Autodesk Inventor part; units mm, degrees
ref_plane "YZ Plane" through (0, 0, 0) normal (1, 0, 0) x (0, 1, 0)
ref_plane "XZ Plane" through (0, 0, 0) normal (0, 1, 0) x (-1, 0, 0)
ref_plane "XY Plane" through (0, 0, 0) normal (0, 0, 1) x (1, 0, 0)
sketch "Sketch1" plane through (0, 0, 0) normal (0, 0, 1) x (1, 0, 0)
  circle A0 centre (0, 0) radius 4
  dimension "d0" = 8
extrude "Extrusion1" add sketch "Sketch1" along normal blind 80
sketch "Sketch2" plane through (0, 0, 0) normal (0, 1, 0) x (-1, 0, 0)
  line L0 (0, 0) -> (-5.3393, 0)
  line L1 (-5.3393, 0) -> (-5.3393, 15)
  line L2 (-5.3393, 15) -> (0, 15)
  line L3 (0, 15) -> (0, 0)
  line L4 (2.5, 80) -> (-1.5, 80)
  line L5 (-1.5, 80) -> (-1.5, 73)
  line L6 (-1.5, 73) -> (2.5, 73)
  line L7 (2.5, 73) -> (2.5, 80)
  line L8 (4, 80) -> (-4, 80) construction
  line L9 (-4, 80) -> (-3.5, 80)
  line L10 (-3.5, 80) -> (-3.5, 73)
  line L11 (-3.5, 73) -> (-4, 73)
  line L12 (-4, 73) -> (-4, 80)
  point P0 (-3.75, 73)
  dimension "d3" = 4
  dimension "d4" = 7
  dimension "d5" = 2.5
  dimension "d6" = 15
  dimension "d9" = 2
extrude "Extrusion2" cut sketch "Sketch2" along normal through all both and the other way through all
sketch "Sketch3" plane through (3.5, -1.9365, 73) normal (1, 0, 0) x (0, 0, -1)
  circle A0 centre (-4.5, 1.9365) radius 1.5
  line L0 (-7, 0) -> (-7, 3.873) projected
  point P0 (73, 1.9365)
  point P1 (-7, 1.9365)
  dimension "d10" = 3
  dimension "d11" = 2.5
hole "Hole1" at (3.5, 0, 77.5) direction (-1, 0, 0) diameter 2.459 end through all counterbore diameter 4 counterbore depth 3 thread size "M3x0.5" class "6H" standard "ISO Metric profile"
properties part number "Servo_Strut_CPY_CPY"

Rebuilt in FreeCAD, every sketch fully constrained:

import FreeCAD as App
import Part
import Sketcher


def add_polygon(sketch, points):
    """Adds a closed chain of lines whose ends are joined by coincident constraints."""
    first, n = sketch.GeometryCount, len(points)
    for a, b in zip(points, points[1:] + points[:1]):
        sketch.addGeometry(Part.LineSegment(App.Vector(*a, 0), App.Vector(*b, 0)), False)
    for i in range(n):
        sketch.addConstraint(Sketcher.Constraint("Coincident", first + i, 2, first + (i + 1) % n, 1))

doc = App.newDocument("Part")
body = doc.addObject("PartDesign::Body", "Body")

# Sketch on XY plane
sketch1 = body.newObject("Sketcher::SketchObject", "Sketch")
sketch1.AttachmentSupport = (doc.getObject("XY_Plane"), [""])
sketch1.MapMode = "FlatFace"
sketch1.addGeometry(Part.Circle(App.Vector(0, 0, 0), App.Vector(0, 0, 1), 4), False)
sketch1.addConstraint(Sketcher.Constraint("Coincident", 0, 3, -1, 1))
sketch1.addConstraint(Sketcher.Constraint("Diameter", 0, 8.0))
pad1 = body.newObject("PartDesign::Pad", "Pad")
pad1.Profile = sketch1
pad1.Length = 80

# Sketch on XZ plane
sketch2 = body.newObject("Sketcher::SketchObject", "Sketch001")
sketch2.AttachmentSupport = (doc.getObject("XZ_Plane"), [""])
sketch2.MapMode = "FlatFace"
add_polygon(sketch2, [(5.3, 0), (0, 0), (0, 15), (5.3, 15)])  # lines 0-3
add_polygon(sketch2, [(-2.5, 73), (-2.5, 80), (1.5, 80), (1.5, 73)])  # lines 4-7
add_polygon(sketch2, [(3.5, 80), (4, 80), (4, 73), (3.5, 73)])  # lines 8-11
sketch2.addConstraint(Sketcher.Constraint("Horizontal", 0))
sketch2.addConstraint(Sketcher.Constraint("Vertical", 1))
sketch2.addConstraint(Sketcher.Constraint("Horizontal", 2))
sketch2.addConstraint(Sketcher.Constraint("Vertical", 3))
sketch2.addConstraint(Sketcher.Constraint("Vertical", 4))
sketch2.addConstraint(Sketcher.Constraint("Horizontal", 5))
sketch2.addConstraint(Sketcher.Constraint("Vertical", 6))
sketch2.addConstraint(Sketcher.Constraint("Horizontal", 7))
sketch2.addConstraint(Sketcher.Constraint("Horizontal", 8))
sketch2.addConstraint(Sketcher.Constraint("Vertical", 9))
sketch2.addConstraint(Sketcher.Constraint("Horizontal", 10))
sketch2.addConstraint(Sketcher.Constraint("Vertical", 11))
sketch2.addConstraint(Sketcher.Constraint("Coincident", 0, 2, -1, 1))
sketch2.addConstraint(Sketcher.Constraint("Horizontal", 5, 2, 8, 2))
sketch2.addConstraint(Sketcher.Constraint("Horizontal", 7, 2, 9, 2))
sketch2.addConstraint(Sketcher.Constraint("DistanceX", 5, 1, 5, 2, 4.0))
sketch2.addConstraint(Sketcher.Constraint("DistanceY", 1, 1, 1, 2, 15.0))
sketch2.addConstraint(Sketcher.Constraint("DistanceY", 4, 1, 4, 2, 7.0))
sketch2.addConstraint(Sketcher.Constraint("DistanceX", -1, 1, 8, 2, 4.0))
sketch2.addConstraint(Sketcher.Constraint("DistanceX", 6, 2, 10, 2, 2.0))
sketch2.addConstraint(Sketcher.Constraint("DistanceX", 4, 2, -1, 1, 2.5))
sketch2.addConstraint(Sketcher.Constraint("DistanceY", -1, 1, 4, 2, 80.0))
sketch2.addConstraint(Sketcher.Constraint("DistanceX", 0, 2, 0, 1, 5.3393))
pocket1 = body.newObject("PartDesign::Pocket", "Pocket")
pocket1.Profile = sketch2
pocket1.Type = "ThroughAll"
pocket1.Midplane = True

# Sketch on YZ plane
sketch3 = body.newObject("Sketcher::SketchObject", "Sketch002")
sketch3.AttachmentSupport = (doc.getObject("YZ_Plane"), [""])
sketch3.MapMode = "FlatFace"
sketch3.AttachmentOffset = App.Placement(App.Vector(0, 0, 3.5), App.Rotation())
sketch3.addGeometry(Part.Circle(App.Vector(0, 77.5, 0), App.Vector(0, 0, 1), 1.2), False)
sketch3.addConstraint(Sketcher.Constraint("PointOnObject", 0, 3, -2))
sketch3.addConstraint(Sketcher.Constraint("Diameter", 0, 2.459))
sketch3.addConstraint(Sketcher.Constraint("DistanceY", -1, 1, 0, 3, 77.5))
doc.recompute()
hole = body.newObject("PartDesign::Hole", "Hole")
hole.Profile = sketch3
hole.ThreadType = "None"
hole.Diameter = 2.459
hole.DepthType = "ThroughAll"
hole.HoleCutType = "Counterbore"
hole.HoleCutDiameter = 4
hole.HoleCutDepth = 3

doc.recompute()
